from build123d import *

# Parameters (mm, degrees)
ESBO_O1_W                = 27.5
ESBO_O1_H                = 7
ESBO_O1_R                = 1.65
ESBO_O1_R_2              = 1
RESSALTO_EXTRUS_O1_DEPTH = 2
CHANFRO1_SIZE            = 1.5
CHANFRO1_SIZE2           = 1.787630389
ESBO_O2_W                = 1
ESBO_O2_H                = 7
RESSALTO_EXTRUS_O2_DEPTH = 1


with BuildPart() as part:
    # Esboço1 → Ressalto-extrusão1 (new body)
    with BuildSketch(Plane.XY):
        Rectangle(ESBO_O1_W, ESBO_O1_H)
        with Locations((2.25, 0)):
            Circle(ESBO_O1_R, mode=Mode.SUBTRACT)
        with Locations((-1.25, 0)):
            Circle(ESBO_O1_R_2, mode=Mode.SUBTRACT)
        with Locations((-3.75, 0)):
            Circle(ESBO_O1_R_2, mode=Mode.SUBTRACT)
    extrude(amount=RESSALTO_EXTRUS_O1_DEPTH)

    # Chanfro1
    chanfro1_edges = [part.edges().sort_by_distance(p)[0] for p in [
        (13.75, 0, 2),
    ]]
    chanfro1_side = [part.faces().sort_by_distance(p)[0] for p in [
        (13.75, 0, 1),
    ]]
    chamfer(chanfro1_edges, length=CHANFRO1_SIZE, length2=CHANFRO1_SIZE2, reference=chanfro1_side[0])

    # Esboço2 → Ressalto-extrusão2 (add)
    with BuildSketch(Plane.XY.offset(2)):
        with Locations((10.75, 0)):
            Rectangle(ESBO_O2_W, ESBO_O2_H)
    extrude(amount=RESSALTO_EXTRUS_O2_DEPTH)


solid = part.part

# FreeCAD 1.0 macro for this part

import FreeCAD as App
import Part
import Sketcher
Q = App.Units.Quantity


def edges_at(feature, points):
    """Names of the edges that pass closest to the given points."""
    edges = feature.Shape.Edges
    near = lambda p: min(range(len(edges)), key=lambda i: edges[i].distToShape(Part.Vertex(*p))[0])
    return sorted({f"Edge{near(p) + 1}" for p in points})


def add_polygon(sketch, points):
    """Adds a closed chain of lines whose ends are joined by coincident constraints."""
    first, n = sketch.GeometryCount, len(points)
    for a, b in zip(points, points[1:] + points[:1]):
        sketch.addGeometry(Part.LineSegment(App.Vector(*a, 0), App.Vector(*b, 0)), False)
    for i in range(n):
        sketch.addConstraint(Sketcher.Constraint("Coincident", first + i, 2, first + (i + 1) % n, 1))

doc = App.newDocument("Part")
params = doc.addObject("Spreadsheet::Sheet", "Params")
for row, (alias, value) in enumerate([
    ("sketch1_diameter", "2 mm"),
    ("sketch1_diameter2", "3.3 mm"),
    ("sketch1_height", "7 mm"),
    ("sketch1_width", "27.5 mm"),
    ("pad1_length", "2 mm"),
    ("chamfer_size", "1.5 mm"),
    ("chamfer_size2", "1.78763 mm"),
    ("sketch2_width", "1 mm"),
    ("sketch2_height", "7 mm"),
    ("pad2_length", "1 mm"),
], start=1):
    params.set(f"A{row}", alias)
    params.set(f"B{row}", "=" + value)
    params.setAlias(f"B{row}", alias)

body = doc.addObject("PartDesign::Body", "Body")

# Sketch on XY plane
sketch1 = doc.addObject("Sketcher::SketchObject", "Sketch")
body.addObject(sketch1)
sketch1.AttachmentSupport = (doc.XY_Plane, [""])
sketch1.MapMode = "FlatFace"
add_polygon(sketch1, [(-13.8, 3.5), (-13.8, -3.5), (13.8, -3.5), (13.8, 3.5)])  # lines 0-3
sketch1.addGeometry(Part.Circle(App.Vector(-3.8, 0, 0), App.Vector(0, 0, 1), 1), False)  # 4
sketch1.addGeometry(Part.Circle(App.Vector(-1.2, 0, 0), App.Vector(0, 0, 1), 1), False)  # 5
sketch1.addGeometry(Part.Circle(App.Vector(2.2, 0, 0), App.Vector(0, 0, 1), 1.6), False)  # 6
sketch1.addConstraint(Sketcher.Constraint("Vertical", 0))
sketch1.addConstraint(Sketcher.Constraint("Horizontal", 1))
sketch1.addConstraint(Sketcher.Constraint("Vertical", 2))
sketch1.addConstraint(Sketcher.Constraint("Horizontal", 3))
sketch1.addConstraint(Sketcher.Constraint("Equal", 4, 5))
sketch1.addConstraint(Sketcher.Constraint("Symmetric", 0, 2, 2, 2, -1, 1))
sketch1.addConstraint(Sketcher.Constraint("PointOnObject", 4, 3, -1))
sketch1.addConstraint(Sketcher.Constraint("PointOnObject", 5, 3, -1))
sketch1.addConstraint(Sketcher.Constraint("PointOnObject", 6, 3, -1))
sketch1.addConstraint(Sketcher.Constraint("Diameter", 4, Q("2 mm")))
sketch1.addConstraint(Sketcher.Constraint("Diameter", 6, Q("3.3 mm")))
sketch1.addConstraint(Sketcher.Constraint("DistanceY", 0, 2, 0, 1, Q("7 mm")))
sketch1.addConstraint(Sketcher.Constraint("DistanceX", 1, 1, 1, 2, Q("27.5 mm")))
sketch1.addConstraint(Sketcher.Constraint("DistanceX", 4, 3, 6, 3, Q("6 mm")))
sketch1.addConstraint(Sketcher.Constraint("DistanceX", 0, 2, 4, 3, Q("10 mm")))
sketch1.addConstraint(Sketcher.Constraint("DistanceX", 5, 3, 1, 2, Q("15 mm")))
sketch1.setExpression("Constraints[13]", "Params.sketch1_diameter")
sketch1.setExpression("Constraints[14]", "Params.sketch1_diameter2")
sketch1.setExpression("Constraints[15]", "Params.sketch1_height")
sketch1.setExpression("Constraints[16]", "Params.sketch1_width")
pad1 = doc.addObject("PartDesign::Pad", "Pad")
body.addObject(pad1)
pad1.Profile = sketch1
pad1.setExpression("Length", "Params.pad1_length")
doc.recompute()

chamfer = doc.addObject("PartDesign::Chamfer", "Chamfer")
body.addObject(chamfer)
chamfer.Base = (pad1, edges_at(pad1, [(13.75, 0, 2)]))
chamfer.ChamferType = "Two distances"
chamfer.setExpression("Size", "Params.chamfer_size")
chamfer.setExpression("Size2", "Params.chamfer_size2")

# Sketch on XY plane
sketch2 = doc.addObject("Sketcher::SketchObject", "Sketch001")
body.addObject(sketch2)
sketch2.AttachmentSupport = (doc.XY_Plane, [""])
sketch2.MapMode = "FlatFace"
sketch2.AttachmentOffset = App.Placement(App.Vector(0, 0, 2), App.Rotation())
add_polygon(sketch2, [(10.2, 3.5), (10.2, -3.5), (11.2, -3.5), (11.2, 3.5)])  # lines 0-3
sketch2.addConstraint(Sketcher.Constraint("Vertical", 0))
sketch2.addConstraint(Sketcher.Constraint("Horizontal", 1))
sketch2.addConstraint(Sketcher.Constraint("Vertical", 2))
sketch2.addConstraint(Sketcher.Constraint("Horizontal", 3))
sketch2.addConstraint(Sketcher.Constraint("DistanceX", 1, 1, 1, 2, Q("1 mm")))
sketch2.addConstraint(Sketcher.Constraint("DistanceY", 0, 2, 0, 1, Q("7 mm")))
sketch2.addConstraint(Sketcher.Constraint("DistanceY", 0, 2, -1, 1, Q("3.5 mm")))
sketch2.addConstraint(Sketcher.Constraint("DistanceX", -1, 1, 0, 2, Q("10.25 mm")))
sketch2.setExpression("Constraints[8]", "Params.sketch2_width")
sketch2.setExpression("Constraints[9]", "Params.sketch2_height")
pad2 = doc.addObject("PartDesign::Pad", "Pad001")
body.addObject(pad2)
pad2.Profile = sketch2
pad2.setExpression("Length", "Params.pad2_length")

doc.recompute()
